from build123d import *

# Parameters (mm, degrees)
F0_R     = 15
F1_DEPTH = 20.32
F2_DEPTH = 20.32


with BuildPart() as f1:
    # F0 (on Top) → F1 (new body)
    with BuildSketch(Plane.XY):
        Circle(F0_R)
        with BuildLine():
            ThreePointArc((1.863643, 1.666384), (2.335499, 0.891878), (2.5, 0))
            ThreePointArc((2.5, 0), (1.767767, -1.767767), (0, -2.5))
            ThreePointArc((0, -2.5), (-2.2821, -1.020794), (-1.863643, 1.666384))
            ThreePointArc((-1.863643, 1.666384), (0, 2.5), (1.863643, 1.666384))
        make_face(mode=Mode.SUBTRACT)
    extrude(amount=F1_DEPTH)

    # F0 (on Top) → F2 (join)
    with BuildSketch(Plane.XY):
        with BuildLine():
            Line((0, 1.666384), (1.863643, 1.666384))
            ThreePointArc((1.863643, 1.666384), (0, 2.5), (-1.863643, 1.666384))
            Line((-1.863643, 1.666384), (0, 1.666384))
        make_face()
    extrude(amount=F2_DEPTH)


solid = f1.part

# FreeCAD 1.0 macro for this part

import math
import FreeCAD as App
import Part
import Sketcher

V = App.Vector
Q = App.Units.Quantity

doc = App.newDocument("Part")
params = doc.addObject("Spreadsheet::Sheet", "Params")
for row, (alias, value) in enumerate([
    ("sketch1_diameter", "30 mm"),
    ("sketch1_radius", "2.500001 mm"),
    ("pad1_length", "20.32 mm"),
    ("sketch2_radius", "2.500001 mm"),
    ("pad2_length", "20.32 mm"),
], start=1):
    params.set(f"A{row}", alias)
    params.set(f"B{row}", "=" + value)
    params.setAlias(f"B{row}", alias)

body = doc.addObject("PartDesign::Body", "Body")

# Sketch on XY plane
sketch1 = body.newObject("Sketcher::SketchObject", "Sketch")
sketch1.AttachmentSupport = (doc.getObject("XY_Plane"), [""])
sketch1.MapMode = "FlatFace"
sketch1.addGeometry([
    Part.Circle(V(0, 0, 0), V(0, 0, 1), 15),  # 0
    Part.ArcOfCircle(Part.Circle(V(0, 0, 0), V(0, 0, 1), 2.5), math.radians(42), math.radians(138)),  # 1
    Part.ArcOfCircle(Part.Circle(V(0, 0, 0), V(0, 0, 1), 2.5), math.radians(0), math.radians(42)),  # 2
    Part.ArcOfCircle(Part.Circle(V(0, 0, 0), V(0, 0, 1), 2.5), math.radians(-90), math.radians(0)),  # 3
    Part.ArcOfCircle(Part.Circle(V(0, 0, 0), V(0, 0, 1), 2.5), math.radians(138), math.radians(270)),  # 4
], False)
sketch1.addConstraint([
    Sketcher.Constraint("Tangent", 1, 1, 2, 2),
    Sketcher.Constraint("Tangent", 2, 1, 3, 2),
    Sketcher.Constraint("Tangent", 3, 1, 4, 2),
    Sketcher.Constraint("Tangent", 4, 1, 1, 2),
    Sketcher.Constraint("Coincident", 0, 3, -1, 1),
    Sketcher.Constraint("Coincident", 1, 3, -1, 1),
    Sketcher.Constraint("Equal", 1, 3),
    Sketcher.Constraint("PointOnObject", 2, 1, -1),
    Sketcher.Constraint("PointOnObject", 3, 1, -2),
    Sketcher.Constraint("Horizontal", 1, 1, 4, 1),
    Sketcher.Constraint("Diameter", 0, Q("30 mm")),
    Sketcher.Constraint("Radius", 1, Q("2.500001 mm")),
    Sketcher.Constraint("DistanceX", 2, 3, 1, 1, Q("1.863639 mm")),
])
sketch1.setExpression("Constraints[10]", "Params.sketch1_diameter")
sketch1.setExpression("Constraints[11]", "Params.sketch1_radius")
pad1 = body.newObject("PartDesign::Pad", "Pad")
pad1.Profile = sketch1
pad1.setExpression("Length", "Params.pad1_length")

# Sketch on XY plane
sketch2 = body.newObject("Sketcher::SketchObject", "Sketch001")
sketch2.AttachmentSupport = (doc.getObject("XY_Plane"), [""])
sketch2.MapMode = "FlatFace"
sketch2.addGeometry([
    Part.ArcOfCircle(Part.Circle(V(0, 0, 0), V(0, 0, 1), 2.5), math.radians(42), math.radians(138)),
    Part.LineSegment(V(-1.9, 1.7, 0), V(1.9, 1.7, 0)),
], False)
sketch2.addConstraint([
    Sketcher.Constraint("Coincident", 0, 1, 1, 2),
    Sketcher.Constraint("Coincident", 1, 1, 0, 2),
    Sketcher.Constraint("Horizontal", 1),
    Sketcher.Constraint("Coincident", 0, 3, -1, 1),
    Sketcher.Constraint("Radius", 0, Q("2.500001 mm")),
    Sketcher.Constraint("DistanceX", 1, 1, 1, 2, Q("3.727286 mm")),
])
sketch2.setExpression("Constraints[4]", "Params.sketch2_radius")
pad2 = body.newObject("PartDesign::Pad", "Pad001")
pad2.Profile = sketch2
pad2.setExpression("Length", "Params.pad2_length")

doc.recompute()
